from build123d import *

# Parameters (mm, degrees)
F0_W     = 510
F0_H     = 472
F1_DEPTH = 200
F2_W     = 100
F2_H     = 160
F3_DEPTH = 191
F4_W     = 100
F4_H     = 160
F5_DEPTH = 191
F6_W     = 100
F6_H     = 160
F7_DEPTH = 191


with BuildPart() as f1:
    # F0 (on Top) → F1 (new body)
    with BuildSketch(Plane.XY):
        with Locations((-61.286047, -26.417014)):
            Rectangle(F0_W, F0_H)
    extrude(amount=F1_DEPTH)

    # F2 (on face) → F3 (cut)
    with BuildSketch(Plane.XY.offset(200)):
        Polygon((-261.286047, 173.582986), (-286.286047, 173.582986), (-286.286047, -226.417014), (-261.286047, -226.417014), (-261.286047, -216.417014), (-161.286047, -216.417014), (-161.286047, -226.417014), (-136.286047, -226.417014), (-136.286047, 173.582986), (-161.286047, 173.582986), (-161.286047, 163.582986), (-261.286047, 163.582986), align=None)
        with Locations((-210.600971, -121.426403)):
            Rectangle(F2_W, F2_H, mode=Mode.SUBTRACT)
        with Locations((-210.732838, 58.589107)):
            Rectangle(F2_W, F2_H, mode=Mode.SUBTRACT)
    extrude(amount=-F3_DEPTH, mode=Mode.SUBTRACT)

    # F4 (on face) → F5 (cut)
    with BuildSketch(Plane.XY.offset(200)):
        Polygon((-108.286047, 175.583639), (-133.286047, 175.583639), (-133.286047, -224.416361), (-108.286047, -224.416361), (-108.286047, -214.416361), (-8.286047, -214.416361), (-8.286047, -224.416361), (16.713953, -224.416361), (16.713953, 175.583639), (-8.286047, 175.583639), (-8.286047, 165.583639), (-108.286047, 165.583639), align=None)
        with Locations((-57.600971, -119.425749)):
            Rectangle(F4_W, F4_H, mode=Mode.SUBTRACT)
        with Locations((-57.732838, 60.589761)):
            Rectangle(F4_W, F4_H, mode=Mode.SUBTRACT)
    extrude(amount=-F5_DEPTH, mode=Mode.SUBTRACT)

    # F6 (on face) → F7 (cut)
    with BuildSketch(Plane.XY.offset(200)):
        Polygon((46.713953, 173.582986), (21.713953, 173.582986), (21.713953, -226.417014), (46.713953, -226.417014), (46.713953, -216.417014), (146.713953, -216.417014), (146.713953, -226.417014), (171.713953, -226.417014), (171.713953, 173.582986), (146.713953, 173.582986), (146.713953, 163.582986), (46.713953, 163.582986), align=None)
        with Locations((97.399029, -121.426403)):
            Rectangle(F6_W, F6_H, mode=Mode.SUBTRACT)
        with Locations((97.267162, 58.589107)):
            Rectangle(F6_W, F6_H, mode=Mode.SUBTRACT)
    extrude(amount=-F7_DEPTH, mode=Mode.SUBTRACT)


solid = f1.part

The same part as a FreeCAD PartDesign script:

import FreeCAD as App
import Part
import Sketcher
from FreeCAD import Vector


def add_polygon(sketch, points):
    """Adds a closed chain of lines whose ends are joined by coincident constraints."""
    first, n = sketch.GeometryCount, len(points)
    for a, b in zip(points, points[1:] + points[:1]):
        sketch.addGeometry(Part.LineSegment(App.Vector(*a, 0), App.Vector(*b, 0)), False)
    for i in range(n):
        sketch.addConstraint(Sketcher.Constraint("Coincident", first + i, 2, first + (i + 1) % n, 1))

doc = App.newDocument("Part")
body = doc.addObject("PartDesign::Body", "Body")

# Sketch on XY plane
sketch1 = doc.addObject("Sketcher::SketchObject", "Sketch")
body.addObject(sketch1)
sketch1.AttachmentSupport = (doc.XY_Plane, [""])
sketch1.MapMode = "FlatFace"
add_polygon(sketch1, [(-316.286047, 209.582986), (-316.286047, -262.417014), (193.713953, -262.417014), (193.713953, 209.582986)])  # lines 0-3
sketch1.addConstraint([
    Sketcher.Constraint("Vertical", 0),
    Sketcher.Constraint("Horizontal", 1),
    Sketcher.Constraint("Vertical", 2),
    Sketcher.Constraint("Horizontal", 3),
    Sketcher.Constraint("DistanceX", 1, 1, 1, 2, 510.0),
    Sketcher.Constraint("DistanceY", 0, 2, 0, 1, 472.0),
    Sketcher.Constraint("DistanceX", 0, 2, -1, 1, 316.286047),
    Sketcher.Constraint("DistanceY", 0, 2, -1, 1, 262.417014),
])
pad1 = doc.addObject("PartDesign::Pad", "Pad")
body.addObject(pad1)
pad1.Profile = sketch1
pad1.Length = 200

# Sketch on XY plane
sketch2 = doc.addObject("Sketcher::SketchObject", "Sketch001")
body.addObject(sketch2)
sketch2.AttachmentSupport = (doc.XY_Plane, [""])
sketch2.MapMode = "FlatFace"
sketch2.AttachmentOffset = App.Placement(Vector(0, 0, 200), App.Rotation())
add_polygon(sketch2, [(-261.286047, 173.582986), (-286.286047, 173.582986), (-286.286047, -226.417014), (-261.286047, -226.417014), (-261.286047, -216.417014), (-161.286047, -216.417014), (-161.286047, -226.417014), (-136.286047, -226.417014), (-136.286047, 173.582986), (-161.286047, 173.582986), (-161.286047, 163.582986), (-261.286047, 163.582986)])  # lines 0-11
add_polygon(sketch2, [(-160.600971, -201.426403), (-260.600971, -201.426403), (-260.600971, -41.426403), (-160.600971, -41.426403)])  # lines 12-15
add_polygon(sketch2, [(-160.732838, -21.410893), (-260.732838, -21.410893), (-260.732838, 138.589107), (-160.732838, 138.589107)])  # lines 16-19
sketch2.addConstraint([
    Sketcher.Constraint("Horizontal", 0),
    Sketcher.Constraint("Vertical", 1),
    Sketcher.Constraint("Horizontal", 2),
    Sketcher.Constraint("Vertical", 3),
    Sketcher.Constraint("Horizontal", 4),
    Sketcher.Constraint("Vertical", 5),
    Sketcher.Constraint("Horizontal", 6),
    Sketcher.Constraint("Vertical", 7),
    Sketcher.Constraint("Horizontal", 8),
    Sketcher.Constraint("Vertical", 9),
    Sketcher.Constraint("Horizontal", 10),
    Sketcher.Constraint("Vertical", 11),
    Sketcher.Constraint("Horizontal", 12),
    Sketcher.Constraint("Vertical", 13),
    Sketcher.Constraint("Horizontal", 14),
    Sketcher.Constraint("Vertical", 15),
    Sketcher.Constraint("Horizontal", 16),
    Sketcher.Constraint("Vertical", 17),
    Sketcher.Constraint("Horizontal", 18),
    Sketcher.Constraint("Vertical", 19),
    Sketcher.Constraint("Horizontal", 2, 2, 5, 2),
    Sketcher.Constraint("Horizontal", 0, 2, 7, 2),
    Sketcher.Constraint("Vertical", 5, 2, 8, 2),
    Sketcher.Constraint("Vertical", 3, 2, 10, 2),
    Sketcher.Constraint("Equal", 2, 6),
    Sketcher.Constraint("Equal", 10, 12),
    Sketcher.Constraint("Equal", 14, 16),
    Sketcher.Constraint("Equal", 5, 9),
    Sketcher.Constraint("Equal", 15, 17),
    Sketcher.Constraint("DistanceX", 0, 2, 0, 1, 25.0),
    Sketcher.Constraint("DistanceX", 4, 1, 4, 2, 100.0),
    Sketcher.Constraint("DistanceY", 1, 2, 1, 1, 400.0),
    Sketcher.Constraint("DistanceY", 3, 1, 3, 2, 10.0),
    Sketcher.Constraint("DistanceY", 13, 1, 13, 2, 160.0),
    Sketcher.Constraint("DistanceX", 12, 2, -1, 1, 260.600971),
    Sketcher.Constraint("DistanceX", 16, 2, -1, 1, 260.732838),
    Sketcher.Constraint("DistanceY", 3, 2, 12, 2, 14.990611),
    Sketcher.Constraint("DistanceY", 13, 2, 16, 2, 20.01551),
    Sketcher.Constraint("DistanceX", 10, 2, 16, 2, 0.553209),
    Sketcher.Constraint("DistanceY", -1, 1, 0, 2, 173.582986),
])
pocket1 = doc.addObject("PartDesign::Pocket", "Pocket")
body.addObject(pocket1)
pocket1.Profile = sketch2
pocket1.Length = 191

# Sketch on XY plane
sketch3 = doc.addObject("Sketcher::SketchObject", "Sketch002")
body.addObject(sketch3)
sketch3.AttachmentSupport = (doc.XY_Plane, [""])
sketch3.MapMode = "FlatFace"
sketch3.AttachmentOffset = App.Placement(Vector(0, 0, 200), App.Rotation())
add_polygon(sketch3, [(-108.286047, 175.583639), (-133.286047, 175.583639), (-133.286047, -224.416361), (-108.286047, -224.416361), (-108.286047, -214.416361), (-8.286047, -214.416361), (-8.286047, -224.416361), (16.713953, -224.416361), (16.713953, 175.583639), (-8.286047, 175.583639), (-8.286047, 165.583639), (-108.286047, 165.583639)])  # lines 0-11
add_polygon(sketch3, [(-7.600971, -199.425749), (-107.600971, -199.425749), (-107.600971, -39.425749), (-7.600971, -39.425749)])  # lines 12-15
add_polygon(sketch3, [(-7.732838, -19.410239), (-107.732838, -19.410239), (-107.732838, 140.589761), (-7.732838, 140.589761)])  # lines 16-19
sketch3.addConstraint([
    Sketcher.Constraint("Horizontal", 0),
    Sketcher.Constraint("Vertical", 1),
    Sketcher.Constraint("Horizontal", 2),
    Sketcher.Constraint("Vertical", 3),
    Sketcher.Constraint("Horizontal", 4),
    Sketcher.Constraint("Vertical", 5),
    Sketcher.Constraint("Horizontal", 6),
    Sketcher.Constraint("Vertical", 7),
    Sketcher.Constraint("Horizontal", 8),
    Sketcher.Constraint("Vertical", 9),
    Sketcher.Constraint("Horizontal", 10),
    Sketcher.Constraint("Vertical", 11),
    Sketcher.Constraint("Horizontal", 12),
    Sketcher.Constraint("Vertical", 13),
    Sketcher.Constraint("Horizontal", 14),
    Sketcher.Constraint("Vertical", 15),
    Sketcher.Constraint("Horizontal", 16),
    Sketcher.Constraint("Vertical", 17),
    Sketcher.Constraint("Horizontal", 18),
    Sketcher.Constraint("Vertical", 19),
    Sketcher.Constraint("Horizontal", 2, 2, 5, 2),
    Sketcher.Constraint("Horizontal", 0, 2, 7, 2),
    Sketcher.Constraint("Vertical", 5, 2, 8, 2),
    Sketcher.Constraint("Vertical", 3, 2, 10, 2),
    Sketcher.Constraint("Equal", 2, 6),
    Sketcher.Constraint("Equal", 10, 12),
    Sketcher.Constraint("Equal", 14, 16),
    Sketcher.Constraint("Equal", 5, 9),
    Sketcher.Constraint("Equal", 15, 17),
    Sketcher.Constraint("DistanceX", 0, 2, 0, 1, 25.0),
    Sketcher.Constraint("DistanceX", 4, 1, 4, 2, 100.0),
    Sketcher.Constraint("DistanceY", 1, 2, 1, 1, 400.0),
    Sketcher.Constraint("DistanceY", 3, 1, 3, 2, 10.0),
    Sketcher.Constraint("DistanceY", 13, 1, 13, 2, 160.0),
    Sketcher.Constraint("DistanceY", -1, 1, 0, 2, 175.583639),
    Sketcher.Constraint("DistanceX", 12, 2, -1, 1, 107.600971),
    Sketcher.Constraint("DistanceY", 12, 2, -1, 1, 199.425749),
    Sketcher.Constraint("DistanceX", 16, 2, -1, 1, 107.732838),
    Sketcher.Constraint("DistanceY", 16, 2, -1, 1, 19.410239),
    Sketcher.Constraint("DistanceX", 10, 2, 16, 2, 0.553209),
])
pocket2 = doc.addObject("PartDesign::Pocket", "Pocket001")
body.addObject(pocket2)
pocket2.Profile = sketch3
pocket2.Length = 191

# Sketch on XY plane
sketch4 = doc.addObject("Sketcher::SketchObject", "Sketch003")
body.addObject(sketch4)
sketch4.AttachmentSupport = (doc.XY_Plane, [""])
sketch4.MapMode = "FlatFace"
sketch4.AttachmentOffset = App.Placement(Vector(0, 0, 200), App.Rotation())
add_polygon(sketch4, [(46.713953, 173.582986), (21.713953, 173.582986), (21.713953, -226.417014), (46.713953, -226.417014), (46.713953, -216.417014), (146.713953, -216.417014), (146.713953, -226.417014), (171.713953, -226.417014), (171.713953, 173.582986), (146.713953, 173.582986), (146.713953, 163.582986), (46.713953, 163.582986)])  # lines 0-11
add_polygon(sketch4, [(147.399029, -201.426403), (47.399029, -201.426403), (47.399029, -41.426403), (147.399029, -41.426403)])  # lines 12-15
add_polygon(sketch4, [(147.267162, -21.410893), (47.267162, -21.410893), (47.267162, 138.589107), (147.267162, 138.589107)])  # lines 16-19
sketch4.addConstraint([
    Sketcher.Constraint("Horizontal", 0),
    Sketcher.Constraint("Vertical", 1),
    Sketcher.Constraint("Horizontal", 2),
    Sketcher.Constraint("Vertical", 3),
    Sketcher.Constraint("Horizontal", 4),
    Sketcher.Constraint("Vertical", 5),
    Sketcher.Constraint("Horizontal", 6),
    Sketcher.Constraint("Vertical", 7),
    Sketcher.Constraint("Horizontal", 8),
    Sketcher.Constraint("Vertical", 9),
    Sketcher.Constraint("Horizontal", 10),
    Sketcher.Constraint("Vertical", 11),
    Sketcher.Constraint("Horizontal", 12),
    Sketcher.Constraint("Vertical", 13),
    Sketcher.Constraint("Horizontal", 14),
    Sketcher.Constraint("Vertical", 15),
    Sketcher.Constraint("Horizontal", 16),
    Sketcher.Constraint("Vertical", 17),
    Sketcher.Constraint("Horizontal", 18),
    Sketcher.Constraint("Vertical", 19),
    Sketcher.Constraint("Horizontal", 2, 2, 5, 2),
    Sketcher.Constraint("Horizontal", 0, 2, 7, 2),
    Sketcher.Constraint("Vertical", 5, 2, 8, 2),
    Sketcher.Constraint("Vertical", 3, 2, 10, 2),
    Sketcher.Constraint("Equal", 2, 6),
    Sketcher.Constraint("Equal", 10, 12),
    Sketcher.Constraint("Equal", 14, 16),
    Sketcher.Constraint("Equal", 5, 9),
    Sketcher.Constraint("Equal", 15, 17),
    Sketcher.Constraint("DistanceX", 0, 2, 0, 1, 25.0),
    Sketcher.Constraint("DistanceX", 4, 1, 4, 2, 100.0),
    Sketcher.Constraint("DistanceY", 1, 2, 1, 1, 400.0),
    Sketcher.Constraint("DistanceY", 3, 1, 3, 2, 10.0),
    Sketcher.Constraint("DistanceY", 13, 1, 13, 2, 160.0),
    Sketcher.Constraint("DistanceX", -1, 1, 12, 2, 47.399029),
    Sketcher.Constraint("DistanceY", 3, 2, 12, 2, 14.990611),
    Sketcher.Constraint("DistanceY", 13, 2, 16, 2, 20.01551),
    Sketcher.Constraint("DistanceX", 10, 2, 16, 2, 0.553209),
    Sketcher.Constraint("DistanceX", -1, 1, 0, 2, 21.713953),
    Sketcher.Constraint("DistanceY", -1, 1, 0, 2, 173.582986),
])
pocket3 = doc.addObject("PartDesign::Pocket", "Pocket002")
body.addObject(pocket3)
pocket3.Profile = sketch4
pocket3.Length = 191

doc.recompute()
